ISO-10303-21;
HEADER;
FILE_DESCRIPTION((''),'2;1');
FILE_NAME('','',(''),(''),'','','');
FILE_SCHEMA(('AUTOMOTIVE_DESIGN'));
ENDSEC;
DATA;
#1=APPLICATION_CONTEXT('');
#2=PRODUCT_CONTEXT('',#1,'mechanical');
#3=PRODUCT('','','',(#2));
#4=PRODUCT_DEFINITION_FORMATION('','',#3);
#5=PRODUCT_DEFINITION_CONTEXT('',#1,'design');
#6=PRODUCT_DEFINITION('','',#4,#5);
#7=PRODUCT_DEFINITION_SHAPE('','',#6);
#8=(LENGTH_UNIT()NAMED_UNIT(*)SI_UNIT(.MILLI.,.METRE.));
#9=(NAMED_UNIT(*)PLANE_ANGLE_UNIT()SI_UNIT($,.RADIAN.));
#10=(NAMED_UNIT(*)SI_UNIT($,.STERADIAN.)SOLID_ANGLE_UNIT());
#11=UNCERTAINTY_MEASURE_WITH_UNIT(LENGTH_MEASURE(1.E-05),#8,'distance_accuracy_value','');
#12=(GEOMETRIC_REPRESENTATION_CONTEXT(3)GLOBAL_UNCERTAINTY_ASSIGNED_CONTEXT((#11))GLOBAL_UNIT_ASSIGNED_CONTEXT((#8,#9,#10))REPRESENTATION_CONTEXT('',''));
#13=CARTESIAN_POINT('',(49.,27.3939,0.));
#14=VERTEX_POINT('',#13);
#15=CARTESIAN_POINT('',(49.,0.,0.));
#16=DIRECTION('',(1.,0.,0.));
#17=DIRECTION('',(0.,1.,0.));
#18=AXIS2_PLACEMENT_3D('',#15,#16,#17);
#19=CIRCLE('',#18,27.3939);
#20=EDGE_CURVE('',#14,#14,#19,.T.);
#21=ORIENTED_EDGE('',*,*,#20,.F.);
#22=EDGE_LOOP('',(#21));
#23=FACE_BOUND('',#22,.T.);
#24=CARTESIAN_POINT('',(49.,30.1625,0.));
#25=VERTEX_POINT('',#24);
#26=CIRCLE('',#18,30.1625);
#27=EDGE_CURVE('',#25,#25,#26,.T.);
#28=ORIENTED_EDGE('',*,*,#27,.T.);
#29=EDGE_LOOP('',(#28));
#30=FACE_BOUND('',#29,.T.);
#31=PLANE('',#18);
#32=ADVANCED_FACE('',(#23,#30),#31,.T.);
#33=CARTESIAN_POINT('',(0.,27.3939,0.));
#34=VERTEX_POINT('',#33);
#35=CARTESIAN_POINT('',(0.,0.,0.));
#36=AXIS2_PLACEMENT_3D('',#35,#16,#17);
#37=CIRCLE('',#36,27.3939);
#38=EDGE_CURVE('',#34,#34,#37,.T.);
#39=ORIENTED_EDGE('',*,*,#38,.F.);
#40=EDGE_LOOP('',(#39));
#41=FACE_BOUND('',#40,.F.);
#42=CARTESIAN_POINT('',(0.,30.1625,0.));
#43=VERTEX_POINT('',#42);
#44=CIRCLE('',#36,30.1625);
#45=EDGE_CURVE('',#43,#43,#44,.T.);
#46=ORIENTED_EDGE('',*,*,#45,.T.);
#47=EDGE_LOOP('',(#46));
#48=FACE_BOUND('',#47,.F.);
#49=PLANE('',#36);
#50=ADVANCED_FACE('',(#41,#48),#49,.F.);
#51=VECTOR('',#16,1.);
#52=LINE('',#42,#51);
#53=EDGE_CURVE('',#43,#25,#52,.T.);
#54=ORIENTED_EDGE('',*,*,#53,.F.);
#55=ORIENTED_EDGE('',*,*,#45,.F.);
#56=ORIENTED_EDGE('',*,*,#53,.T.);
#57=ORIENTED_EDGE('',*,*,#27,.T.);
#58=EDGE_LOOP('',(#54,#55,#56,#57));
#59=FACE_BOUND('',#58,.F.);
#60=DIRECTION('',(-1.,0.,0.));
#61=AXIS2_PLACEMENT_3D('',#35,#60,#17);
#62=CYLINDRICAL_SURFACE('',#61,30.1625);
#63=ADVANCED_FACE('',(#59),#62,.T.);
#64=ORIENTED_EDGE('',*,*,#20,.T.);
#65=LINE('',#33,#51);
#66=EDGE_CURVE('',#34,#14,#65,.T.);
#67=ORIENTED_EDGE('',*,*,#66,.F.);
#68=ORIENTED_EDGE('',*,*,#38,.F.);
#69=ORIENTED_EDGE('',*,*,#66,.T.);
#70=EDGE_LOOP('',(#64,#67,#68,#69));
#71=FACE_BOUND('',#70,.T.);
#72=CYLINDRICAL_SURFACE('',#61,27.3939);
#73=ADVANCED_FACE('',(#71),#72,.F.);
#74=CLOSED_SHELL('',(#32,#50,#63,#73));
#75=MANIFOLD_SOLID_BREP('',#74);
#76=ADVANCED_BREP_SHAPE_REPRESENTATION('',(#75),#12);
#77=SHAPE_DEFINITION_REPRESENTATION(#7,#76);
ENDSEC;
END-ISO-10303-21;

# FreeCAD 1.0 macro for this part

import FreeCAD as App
import Part
import Sketcher

V = App.Vector
Q = App.Units.Quantity

doc = App.newDocument("Part")
body = doc.addObject("PartDesign::Body", "Body")

sketch1 = body.newObject("Sketcher::SketchObject", "Sketch")
sketch1.AttachmentSupport = (doc.getObject("YZ_Plane"), [""])
sketch1.MapMode = "FlatFace"
sketch1.addGeometry(Part.Circle(V(0, 0, 0), V(0, 0, 1), 30), False)
sketch1.addGeometry(Part.Circle(V(0, 0, 0), V(0, 0, 1), 27), False)
sketch1.addConstraint(Sketcher.Constraint("Coincident", 0, 3, -1, 1))
sketch1.addConstraint(Sketcher.Constraint("Coincident", 1, 3, -1, 1))
sketch1.addConstraint(Sketcher.Constraint("Diameter", 0, Q("2.375 in")))
sketch1.addConstraint(Sketcher.Constraint("Diameter", 1, Q("2.157 in")))
pad1 = body.newObject("PartDesign::Pad", "Pad")
pad1.Profile = sketch1
pad1.Length = 49

doc.recompute()
